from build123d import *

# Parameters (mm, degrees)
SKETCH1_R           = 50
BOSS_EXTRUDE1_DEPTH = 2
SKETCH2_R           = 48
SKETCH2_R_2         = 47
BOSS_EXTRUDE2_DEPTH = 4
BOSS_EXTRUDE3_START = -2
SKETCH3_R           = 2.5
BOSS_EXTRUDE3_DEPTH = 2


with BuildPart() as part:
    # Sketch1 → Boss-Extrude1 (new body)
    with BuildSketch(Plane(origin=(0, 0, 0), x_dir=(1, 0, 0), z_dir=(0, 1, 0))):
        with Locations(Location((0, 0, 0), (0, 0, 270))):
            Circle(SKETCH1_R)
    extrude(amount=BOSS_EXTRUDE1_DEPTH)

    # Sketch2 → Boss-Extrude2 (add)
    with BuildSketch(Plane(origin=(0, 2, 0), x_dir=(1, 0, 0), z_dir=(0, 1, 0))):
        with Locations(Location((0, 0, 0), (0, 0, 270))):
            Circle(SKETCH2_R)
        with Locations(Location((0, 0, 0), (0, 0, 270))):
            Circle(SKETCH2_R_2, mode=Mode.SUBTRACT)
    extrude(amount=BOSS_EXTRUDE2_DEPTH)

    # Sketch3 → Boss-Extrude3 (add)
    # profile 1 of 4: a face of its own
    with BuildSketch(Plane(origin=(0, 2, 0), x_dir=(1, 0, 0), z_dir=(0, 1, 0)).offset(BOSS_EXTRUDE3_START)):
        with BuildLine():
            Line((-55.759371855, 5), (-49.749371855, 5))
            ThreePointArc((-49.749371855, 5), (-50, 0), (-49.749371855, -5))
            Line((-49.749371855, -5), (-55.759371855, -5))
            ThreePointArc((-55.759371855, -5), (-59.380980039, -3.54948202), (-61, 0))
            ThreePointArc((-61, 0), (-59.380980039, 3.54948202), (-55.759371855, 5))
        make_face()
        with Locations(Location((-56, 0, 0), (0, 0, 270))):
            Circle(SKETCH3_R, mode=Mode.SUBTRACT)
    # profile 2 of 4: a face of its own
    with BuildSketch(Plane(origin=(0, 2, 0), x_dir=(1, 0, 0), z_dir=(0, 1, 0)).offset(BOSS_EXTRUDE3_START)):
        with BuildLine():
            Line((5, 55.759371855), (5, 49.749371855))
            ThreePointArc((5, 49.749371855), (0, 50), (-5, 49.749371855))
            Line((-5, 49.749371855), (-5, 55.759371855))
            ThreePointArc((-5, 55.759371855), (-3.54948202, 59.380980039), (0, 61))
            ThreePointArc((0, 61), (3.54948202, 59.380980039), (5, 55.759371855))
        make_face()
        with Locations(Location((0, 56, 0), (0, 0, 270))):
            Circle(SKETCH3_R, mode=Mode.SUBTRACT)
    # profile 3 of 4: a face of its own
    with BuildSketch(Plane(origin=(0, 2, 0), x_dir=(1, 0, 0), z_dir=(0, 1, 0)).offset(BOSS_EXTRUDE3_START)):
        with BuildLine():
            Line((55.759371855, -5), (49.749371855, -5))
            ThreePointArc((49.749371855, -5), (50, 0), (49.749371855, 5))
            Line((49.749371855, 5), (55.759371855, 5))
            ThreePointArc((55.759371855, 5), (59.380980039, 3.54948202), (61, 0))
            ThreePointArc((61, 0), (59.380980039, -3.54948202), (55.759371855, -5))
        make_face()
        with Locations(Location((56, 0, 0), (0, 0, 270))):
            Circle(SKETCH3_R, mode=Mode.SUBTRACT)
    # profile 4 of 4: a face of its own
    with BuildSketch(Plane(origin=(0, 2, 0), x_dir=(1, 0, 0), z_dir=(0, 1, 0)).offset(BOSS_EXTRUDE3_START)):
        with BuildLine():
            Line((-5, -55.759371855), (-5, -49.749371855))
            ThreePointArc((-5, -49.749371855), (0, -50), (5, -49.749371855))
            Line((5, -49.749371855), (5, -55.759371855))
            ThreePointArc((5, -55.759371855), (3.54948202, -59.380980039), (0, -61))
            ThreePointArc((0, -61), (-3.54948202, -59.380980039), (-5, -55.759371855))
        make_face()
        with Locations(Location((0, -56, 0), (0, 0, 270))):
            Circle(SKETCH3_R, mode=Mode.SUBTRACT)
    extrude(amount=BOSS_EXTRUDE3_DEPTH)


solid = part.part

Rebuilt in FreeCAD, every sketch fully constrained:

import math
import FreeCAD as App
import Part
import Sketcher
from FreeCAD import Vector
Q = App.Units.Quantity

doc = App.newDocument("Part")
params = doc.addObject("Spreadsheet::Sheet", "Params")
for row, (alias, value) in enumerate([
    ("sketch1_diameter", "100 mm"),
    ("pad1_length", "2 mm"),
    ("sketch2_diameter", "96 mm"),
    ("sketch2_diameter2", "94 mm"),
    ("pad2_length", "4 mm"),
    ("sketch3_diameter", "5 mm"),
    ("sketch3_radius", "50 mm"),
    ("sketch3_width", "6.01 mm"),
    ("pad3_length", "2 mm"),
], start=1):
    params.set(f"A{row}", alias)
    params.set(f"B{row}", "=" + value)
    params.setAlias(f"B{row}", alias)

body = doc.addObject("PartDesign::Body", "Body")

sketch1 = body.newObject("Sketcher::SketchObject", "Sketch")
sketch1.AttachmentSupport = (doc.getObject("XZ_Plane"), [""])
sketch1.MapMode = "FlatFace"
sketch1.addGeometry(Part.Circle(Vector(0, 0, 0), Vector(0, 0, 1), 50), False)
sketch1.addConstraint(Sketcher.Constraint("Coincident", 0, 3, -1, 1))
sketch1.addConstraint(Sketcher.Constraint("Diameter", 0, Q("100 mm")))
sketch1.setExpression("Constraints[1]", "Params.sketch1_diameter")
pad1 = body.newObject("PartDesign::Pad", "Pad")
pad1.Profile = sketch1
pad1.setExpression("Length", "Params.pad1_length")
pad1.Reversed = True

sketch2 = body.newObject("Sketcher::SketchObject", "Sketch001")
sketch2.AttachmentSupport = (doc.getObject("XZ_Plane"), [""])
sketch2.MapMode = "FlatFace"
sketch2.AttachmentOffset = App.Placement(Vector(0, 0, -2), App.Rotation())
sketch2.addGeometry(Part.Circle(Vector(0, 0, 0), Vector(0, 0, 1), 48), False)
sketch2.addGeometry(Part.Circle(Vector(0, 0, 0), Vector(0, 0, 1), 47), False)
sketch2.addConstraint(Sketcher.Constraint("Coincident", 0, 3, -1, 1))
sketch2.addConstraint(Sketcher.Constraint("Coincident", 1, 3, -1, 1))
sketch2.addConstraint(Sketcher.Constraint("Diameter", 0, Q("96 mm")))
sketch2.addConstraint(Sketcher.Constraint("Diameter", 1, Q("94 mm")))
sketch2.setExpression("Constraints[2]", "Params.sketch2_diameter")
sketch2.setExpression("Constraints[3]", "Params.sketch2_diameter2")
pad2 = body.newObject("PartDesign::Pad", "Pad001")
pad2.Profile = sketch2
pad2.setExpression("Length", "Params.pad2_length")
pad2.Reversed = True

sketch3 = body.newObject("Sketcher::SketchObject", "Sketch002")
sketch3.AttachmentSupport = (doc.getObject("XZ_Plane"), [""])
sketch3.MapMode = "FlatFace"
sketch3.addGeometry(Part.LineSegment(Vector(-49.749372, -5, 0), Vector(-55.759372, -5, 0)), False)
sketch3.addGeometry(Part.ArcOfCircle(Part.Circle(Vector(-55.759372, 0.246418, 0), Vector(0, 0, 1), 5.246418), math.radians(-177.307892), math.radians(-90)), False)
sketch3.addGeometry(Part.ArcOfCircle(Part.Circle(Vector(-55.759372, -0.246418, 0), Vector(0, 0, 1), 5.246418), math.radians(90), math.radians(177.307892)), False)
sketch3.addGeometry(Part.LineSegment(Vector(-55.759372, 5, 0), Vector(-49.749372, 5, 0)), False)
sketch3.addGeometry(Part.ArcOfCircle(Part.Circle(Vector(0, 0, 0), Vector(0, 0, 1), 50), math.radians(174.26083), math.radians(185.73917)), False)
sketch3.addGeometry(Part.Circle(Vector(-56, 0, 0), Vector(0, 0, 1), 2.5), False)
sketch3.addGeometry(Part.LineSegment(Vector(5, -49.749372, 0), Vector(5, -55.759372, 0)), False)
sketch3.addGeometry(Part.ArcOfCircle(Part.Circle(Vector(-0.246418, -55.759372, 0), Vector(0, 0, 1), 5.246418), math.radians(-87.307892), math.radians(0)), False)
sketch3.addGeometry(Part.ArcOfCircle(Part.Circle(Vector(0.246418, -55.759372, 0), Vector(0, 0, 1), 5.246418), math.radians(-180), math.radians(-92.692108)), False)
sketch3.addGeometry(Part.LineSegment(Vector(-5, -55.759372, 0), Vector(-5, -49.749372, 0)), False)
sketch3.addGeometry(Part.ArcOfCircle(Part.Circle(Vector(0, 0, 0), Vector(0, 0, 1), 50), math.radians(-95.73917), math.radians(-84.26083)), False)
sketch3.addGeometry(Part.Circle(Vector(0, -56, 0), Vector(0, 0, 1), 2.5), False)
sketch3.addGeometry(Part.LineSegment(Vector(49.749372, 5, 0), Vector(55.759372, 5, 0)), False)
sketch3.addGeometry(Part.ArcOfCircle(Part.Circle(Vector(55.759372, -0.246418, 0), Vector(0, 0, 1), 5.246418), math.radians(2.692108), math.radians(90)), False)
sketch3.addGeometry(Part.ArcOfCircle(Part.Circle(Vector(55.759372, 0.246418, 0), Vector(0, 0, 1), 5.246418), math.radians(-90), math.radians(-2.692108)), False)
sketch3.addGeometry(Part.LineSegment(Vector(55.759372, -5, 0), Vector(49.749372, -5, 0)), False)
sketch3.addGeometry(Part.ArcOfCircle(Part.Circle(Vector(0, 0, 0), Vector(0, 0, 1), 50), math.radians(-5.73917), math.radians(5.73917)), False)
sketch3.addGeometry(Part.Circle(Vector(56, 0, 0), Vector(0, 0, 1), 2.5), False)
sketch3.addGeometry(Part.LineSegment(Vector(-5, 49.749372, 0), Vector(-5, 55.759372, 0)), False)
sketch3.addGeometry(Part.ArcOfCircle(Part.Circle(Vector(0.246418, 55.759372, 0), Vector(0, 0, 1), 5.246418), math.radians(92.692108), math.radians(180)), False)
sketch3.addGeometry(Part.ArcOfCircle(Part.Circle(Vector(-0.246418, 55.759372, 0), Vector(0, 0, 1), 5.246418), math.radians(0), math.radians(87.307892)), False)
sketch3.addGeometry(Part.LineSegment(Vector(5, 55.759372, 0), Vector(5, 49.749372, 0)), False)
sketch3.addGeometry(Part.ArcOfCircle(Part.Circle(Vector(0, 0, 0), Vector(0, 0, 1), 50), math.radians(84.26083), math.radians(95.73917)), False)
sketch3.addGeometry(Part.Circle(Vector(0, 56, 0), Vector(0, 0, 1), 2.5), False)
sketch3.addConstraint(Sketcher.Constraint("Tangent", 0, 2, 1, 2))
sketch3.addConstraint(Sketcher.Constraint("Coincident", 1, 1, 2, 2))
sketch3.addConstraint(Sketcher.Constraint("Tangent", 2, 1, 3, 1))
sketch3.addConstraint(Sketcher.Constraint("Coincident", 3, 2, 4, 1))
sketch3.addConstraint(Sketcher.Constraint("Coincident", 4, 2, 0, 1))
sketch3.addConstraint(Sketcher.Constraint("Tangent", 6, 2, 7, 2))
sketch3.addConstraint(Sketcher.Constraint("Coincident", 7, 1, 8, 2))
sketch3.addConstraint(Sketcher.Constraint("Tangent", 8, 1, 9, 1))
sketch3.addConstraint(Sketcher.Constraint("Coincident", 9, 2, 10, 1))
sketch3.addConstraint(Sketcher.Constraint("Coincident", 10, 2, 6, 1))
sketch3.addConstraint(Sketcher.Constraint("Tangent", 12, 2, 13, 2))
sketch3.addConstraint(Sketcher.Constraint("Coincident", 13, 1, 14, 2))
sketch3.addConstraint(Sketcher.Constraint("Tangent", 14, 1, 15, 1))
sketch3.addConstraint(Sketcher.Constraint("Coincident", 15, 2, 16, 1))
sketch3.addConstraint(Sketcher.Constraint("Coincident", 16, 2, 12, 1))
sketch3.addConstraint(Sketcher.Constraint("Tangent", 18, 2, 19, 2))
sketch3.addConstraint(Sketcher.Constraint("Coincident", 19, 1, 20, 2))
sketch3.addConstraint(Sketcher.Constraint("Tangent", 20, 1, 21, 1))
sketch3.addConstraint(Sketcher.Constraint("Coincident", 21, 2, 22, 1))
sketch3.addConstraint(Sketcher.Constraint("Coincident", 22, 2, 18, 1))
sketch3.addConstraint(Sketcher.Constraint("Horizontal", 0))
sketch3.addConstraint(Sketcher.Constraint("Horizontal", 3))
sketch3.addConstraint(Sketcher.Constraint("Vertical", 6))
sketch3.addConstraint(Sketcher.Constraint("Vertical", 9))
sketch3.addConstraint(Sketcher.Constraint("Horizontal", 12))
sketch3.addConstraint(Sketcher.Constraint("Horizontal", 15))
sketch3.addConstraint(Sketcher.Constraint("Vertical", 18))
sketch3.addConstraint(Sketcher.Constraint("Vertical", 21))
sketch3.addConstraint(Sketcher.Constraint("Coincident", 4, 3, -1, 1))
sketch3.addConstraint(Sketcher.Constraint("Coincident", 10, 3, -1, 1))
sketch3.addConstraint(Sketcher.Constraint("Coincident", 16, 3, -1, 1))
sketch3.addConstraint(Sketcher.Constraint("Coincident", 22, 3, -1, 1))
sketch3.addConstraint(Sketcher.Constraint("Equal", 1, 2))
sketch3.addConstraint(Sketcher.Constraint("Equal", 2, 7))
sketch3.addConstraint(Sketcher.Constraint("Equal", 7, 8))
sketch3.addConstraint(Sketcher.Constraint("Equal", 4, 10))
sketch3.addConstraint(Sketcher.Constraint("Equal", 5, 11))
sketch3.addConstraint(Sketcher.Constraint("Equal", 8, 13))
sketch3.addConstraint(Sketcher.Constraint("Equal", 13, 14))
sketch3.addConstraint(Sketcher.Constraint("Equal", 10, 16))
sketch3.addConstraint(Sketcher.Constraint("Equal", 11, 17))
sketch3.addConstraint(Sketcher.Constraint("Equal", 14, 19))
sketch3.addConstraint(Sketcher.Constraint("Equal", 19, 20))
sketch3.addConstraint(Sketcher.Constraint("Equal", 16, 22))
sketch3.addConstraint(Sketcher.Constraint("Equal", 17, 23))
sketch3.addConstraint(Sketcher.Constraint("Symmetric", 1, 3, 13, 3, -1, 1))
sketch3.addConstraint(Sketcher.Constraint("Symmetric", 2, 3, 14, 3, -1, 1))
sketch3.addConstraint(Sketcher.Constraint("Symmetric", 5, 3, 17, 3, -1, 1))
sketch3.addConstraint(Sketcher.Constraint("Symmetric", 7, 3, 19, 3, -1, 1))
sketch3.addConstraint(Sketcher.Constraint("Symmetric", 8, 3, 20, 3, -1, 1))
sketch3.addConstraint(Sketcher.Constraint("Symmetric", 11, 3, 23, 3, -1, 1))
sketch3.addConstraint(Sketcher.Constraint("Symmetric", 7, 3, 8, 3, -2))
sketch3.addConstraint(Sketcher.Constraint("Symmetric", 2, 3, 13, 3, -2))
sketch3.addConstraint(Sketcher.Constraint("PointOnObject", 5, 3, -1))
sketch3.addConstraint(Sketcher.Constraint("PointOnObject", 11, 3, -2))
sketch3.addConstraint(Sketcher.Constraint("Equal", 15, 6))
sketch3.addConstraint(Sketcher.Constraint("Diameter", 5, Q("5 mm")))
sketch3.addConstraint(Sketcher.Constraint("Radius", 4, Q("50 mm")))
sketch3.addConstraint(Sketcher.Constraint("DistanceX", 5, 3, -1, 1, Q("56 mm")))
sketch3.addConstraint(Sketcher.Constraint("DistanceY", 11, 3, -1, 1, Q("56 mm")))
sketch3.addConstraint(Sketcher.Constraint("DistanceY", 0, 2, -1, 1, Q("5 mm")))
sketch3.addConstraint(Sketcher.Constraint("DistanceX", 1, 1, -1, 1, Q("61 mm")))
sketch3.addConstraint(Sketcher.Constraint("DistanceX", -1, 1, 6, 2, Q("5 mm")))
sketch3.addConstraint(Sketcher.Constraint("DistanceX", 0, 2, 0, 1, Q("6.01 mm")))
sketch3.setExpression("Constraints[56]", "Params.sketch3_diameter")
sketch3.setExpression("Constraints[57]", "Params.sketch3_radius")
sketch3.setExpression("Constraints[63]", "Params.sketch3_width")
pad3 = body.newObject("PartDesign::Pad", "Pad002")
pad3.Profile = sketch3
pad3.setExpression("Length", "Params.pad3_length")
pad3.Reversed = True

doc.recompute()
